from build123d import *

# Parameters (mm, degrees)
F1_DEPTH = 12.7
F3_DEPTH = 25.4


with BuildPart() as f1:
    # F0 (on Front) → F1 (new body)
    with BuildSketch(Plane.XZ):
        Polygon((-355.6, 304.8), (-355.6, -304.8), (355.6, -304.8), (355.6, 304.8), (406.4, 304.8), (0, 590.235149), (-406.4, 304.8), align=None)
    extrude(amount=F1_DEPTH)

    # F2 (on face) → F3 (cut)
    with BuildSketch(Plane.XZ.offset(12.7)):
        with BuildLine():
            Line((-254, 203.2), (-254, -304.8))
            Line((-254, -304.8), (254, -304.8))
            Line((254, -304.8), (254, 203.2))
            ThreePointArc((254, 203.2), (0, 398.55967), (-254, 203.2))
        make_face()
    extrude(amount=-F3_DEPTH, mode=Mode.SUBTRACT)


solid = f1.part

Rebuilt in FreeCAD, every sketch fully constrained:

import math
import FreeCAD as App
import Part
import Sketcher

V = App.Vector
Q = App.Units.Quantity


def add_polygon(sketch, points):
    """Adds a closed chain of lines whose ends are joined by coincident constraints."""
    first, n = sketch.GeometryCount, len(points)
    for a, b in zip(points, points[1:] + points[:1]):
        sketch.addGeometry(Part.LineSegment(App.Vector(*a, 0), App.Vector(*b, 0)), False)
    for i in range(n):
        sketch.addConstraint(Sketcher.Constraint("Coincident", first + i, 2, first + (i + 1) % n, 1))

doc = App.newDocument("Part")
params = doc.addObject("Spreadsheet::Sheet", "Params")
for row, (alias, value) in enumerate([
    ("sketch1_width", "28 in"),
    ("sketch1_width2", "2 in"),
    ("sketch1_height", "24 in"),
    ("pad1_length", "0.5 in"),
    ("sketch2_width", "20 in"),
    ("pocket1_length", "1 in"),
], start=1):
    params.set(f"A{row}", alias)
    params.set(f"B{row}", "=" + value)
    params.setAlias(f"B{row}", alias)

body = doc.addObject("PartDesign::Body", "Body")

# Sketch on XZ plane
sketch1 = body.newObject("Sketcher::SketchObject", "Sketch")
sketch1.AttachmentSupport = (doc.getObject("XZ_Plane"), [""])
sketch1.MapMode = "FlatFace"
add_polygon(sketch1, [(-356, 305), (-356, -305), (356, -305), (356, 305), (406, 305), (0, 590), (-406, 305)])  # lines 0-6
sketch1.addConstraint(Sketcher.Constraint("Vertical", 0))
sketch1.addConstraint(Sketcher.Constraint("Horizontal", 1))
sketch1.addConstraint(Sketcher.Constraint("Vertical", 2))
sketch1.addConstraint(Sketcher.Constraint("Horizontal", 3))
sketch1.addConstraint(Sketcher.Constraint("Horizontal", 6))
sketch1.addConstraint(Sketcher.Constraint("Symmetric", 0, 2, 2, 2, -1, 1))
sketch1.addConstraint(Sketcher.Constraint("Symmetric", 3, 2, 5, 2, -2))
sketch1.addConstraint(Sketcher.Constraint("PointOnObject", 4, 2, -2))
sketch1.addConstraint(Sketcher.Constraint("DistanceX", 1, 1, 1, 2, Q("28 in")))
sketch1.addConstraint(Sketcher.Constraint("DistanceX", 3, 1, 3, 2, Q("2 in")))
sketch1.addConstraint(Sketcher.Constraint("DistanceY", 0, 2, 0, 1, Q("24 in")))
sketch1.addConstraint(Sketcher.Constraint("Distance", 4, 496.622779))
sketch1.setExpression("Constraints[15]", "Params.sketch1_width")
sketch1.setExpression("Constraints[16]", "Params.sketch1_width2")
sketch1.setExpression("Constraints[17]", "Params.sketch1_height")
pad1 = body.newObject("PartDesign::Pad", "Pad")
pad1.Profile = sketch1
pad1.setExpression("Length", "Params.pad1_length")

# Sketch on XZ plane
sketch2 = body.newObject("Sketcher::SketchObject", "Sketch001")
sketch2.AttachmentSupport = (doc.getObject("XZ_Plane"), [""])
sketch2.MapMode = "FlatFace"
sketch2.AttachmentOffset = App.Placement(V(0, 0, 0.5 * 25.4), App.Rotation())
sketch2.addGeometry(Part.LineSegment(V(-254, 203, 0), V(-254, -305, 0)), False)
sketch2.addGeometry(Part.LineSegment(V(-254, -305, 0), V(254, -305, 0)), False)
sketch2.addGeometry(Part.LineSegment(V(254, -305, 0), V(254, 203, 0)), False)
sketch2.addGeometry(Part.ArcOfCircle(Part.Circle(V(0, 136, 0), V(0, 0, 1), 263), math.radians(15), math.radians(165)), False)
sketch2.addConstraint(Sketcher.Constraint("Coincident", 0, 2, 1, 1))
sketch2.addConstraint(Sketcher.Constraint("Coincident", 1, 2, 2, 1))
sketch2.addConstraint(Sketcher.Constraint("Coincident", 2, 2, 3, 1))
sketch2.addConstraint(Sketcher.Constraint("Coincident", 3, 2, 0, 1))
sketch2.addConstraint(Sketcher.Constraint("Vertical", 0))
sketch2.addConstraint(Sketcher.Constraint("Horizontal", 1))
sketch2.addConstraint(Sketcher.Constraint("Vertical", 2))
sketch2.addConstraint(Sketcher.Constraint("Symmetric", 2, 2, 3, 2, -2))
sketch2.addConstraint(Sketcher.Constraint("Equal", 1, 0))
sketch2.addConstraint(Sketcher.Constraint("DistanceX", 1, 1, 1, 2, Q("20 in")))
sketch2.addConstraint(Sketcher.Constraint("DistanceY", 0, 2, -1, 1, Q("12 in")))
sketch2.addConstraint(Sketcher.Constraint("Radius", 3, 262.800917))
sketch2.setExpression("Constraints[9]", "Params.sketch2_width")
pocket1 = body.newObject("PartDesign::Pocket", "Pocket")
pocket1.Profile = sketch2
pocket1.setExpression("Length", "Params.pocket1_length")

doc.recompute()
